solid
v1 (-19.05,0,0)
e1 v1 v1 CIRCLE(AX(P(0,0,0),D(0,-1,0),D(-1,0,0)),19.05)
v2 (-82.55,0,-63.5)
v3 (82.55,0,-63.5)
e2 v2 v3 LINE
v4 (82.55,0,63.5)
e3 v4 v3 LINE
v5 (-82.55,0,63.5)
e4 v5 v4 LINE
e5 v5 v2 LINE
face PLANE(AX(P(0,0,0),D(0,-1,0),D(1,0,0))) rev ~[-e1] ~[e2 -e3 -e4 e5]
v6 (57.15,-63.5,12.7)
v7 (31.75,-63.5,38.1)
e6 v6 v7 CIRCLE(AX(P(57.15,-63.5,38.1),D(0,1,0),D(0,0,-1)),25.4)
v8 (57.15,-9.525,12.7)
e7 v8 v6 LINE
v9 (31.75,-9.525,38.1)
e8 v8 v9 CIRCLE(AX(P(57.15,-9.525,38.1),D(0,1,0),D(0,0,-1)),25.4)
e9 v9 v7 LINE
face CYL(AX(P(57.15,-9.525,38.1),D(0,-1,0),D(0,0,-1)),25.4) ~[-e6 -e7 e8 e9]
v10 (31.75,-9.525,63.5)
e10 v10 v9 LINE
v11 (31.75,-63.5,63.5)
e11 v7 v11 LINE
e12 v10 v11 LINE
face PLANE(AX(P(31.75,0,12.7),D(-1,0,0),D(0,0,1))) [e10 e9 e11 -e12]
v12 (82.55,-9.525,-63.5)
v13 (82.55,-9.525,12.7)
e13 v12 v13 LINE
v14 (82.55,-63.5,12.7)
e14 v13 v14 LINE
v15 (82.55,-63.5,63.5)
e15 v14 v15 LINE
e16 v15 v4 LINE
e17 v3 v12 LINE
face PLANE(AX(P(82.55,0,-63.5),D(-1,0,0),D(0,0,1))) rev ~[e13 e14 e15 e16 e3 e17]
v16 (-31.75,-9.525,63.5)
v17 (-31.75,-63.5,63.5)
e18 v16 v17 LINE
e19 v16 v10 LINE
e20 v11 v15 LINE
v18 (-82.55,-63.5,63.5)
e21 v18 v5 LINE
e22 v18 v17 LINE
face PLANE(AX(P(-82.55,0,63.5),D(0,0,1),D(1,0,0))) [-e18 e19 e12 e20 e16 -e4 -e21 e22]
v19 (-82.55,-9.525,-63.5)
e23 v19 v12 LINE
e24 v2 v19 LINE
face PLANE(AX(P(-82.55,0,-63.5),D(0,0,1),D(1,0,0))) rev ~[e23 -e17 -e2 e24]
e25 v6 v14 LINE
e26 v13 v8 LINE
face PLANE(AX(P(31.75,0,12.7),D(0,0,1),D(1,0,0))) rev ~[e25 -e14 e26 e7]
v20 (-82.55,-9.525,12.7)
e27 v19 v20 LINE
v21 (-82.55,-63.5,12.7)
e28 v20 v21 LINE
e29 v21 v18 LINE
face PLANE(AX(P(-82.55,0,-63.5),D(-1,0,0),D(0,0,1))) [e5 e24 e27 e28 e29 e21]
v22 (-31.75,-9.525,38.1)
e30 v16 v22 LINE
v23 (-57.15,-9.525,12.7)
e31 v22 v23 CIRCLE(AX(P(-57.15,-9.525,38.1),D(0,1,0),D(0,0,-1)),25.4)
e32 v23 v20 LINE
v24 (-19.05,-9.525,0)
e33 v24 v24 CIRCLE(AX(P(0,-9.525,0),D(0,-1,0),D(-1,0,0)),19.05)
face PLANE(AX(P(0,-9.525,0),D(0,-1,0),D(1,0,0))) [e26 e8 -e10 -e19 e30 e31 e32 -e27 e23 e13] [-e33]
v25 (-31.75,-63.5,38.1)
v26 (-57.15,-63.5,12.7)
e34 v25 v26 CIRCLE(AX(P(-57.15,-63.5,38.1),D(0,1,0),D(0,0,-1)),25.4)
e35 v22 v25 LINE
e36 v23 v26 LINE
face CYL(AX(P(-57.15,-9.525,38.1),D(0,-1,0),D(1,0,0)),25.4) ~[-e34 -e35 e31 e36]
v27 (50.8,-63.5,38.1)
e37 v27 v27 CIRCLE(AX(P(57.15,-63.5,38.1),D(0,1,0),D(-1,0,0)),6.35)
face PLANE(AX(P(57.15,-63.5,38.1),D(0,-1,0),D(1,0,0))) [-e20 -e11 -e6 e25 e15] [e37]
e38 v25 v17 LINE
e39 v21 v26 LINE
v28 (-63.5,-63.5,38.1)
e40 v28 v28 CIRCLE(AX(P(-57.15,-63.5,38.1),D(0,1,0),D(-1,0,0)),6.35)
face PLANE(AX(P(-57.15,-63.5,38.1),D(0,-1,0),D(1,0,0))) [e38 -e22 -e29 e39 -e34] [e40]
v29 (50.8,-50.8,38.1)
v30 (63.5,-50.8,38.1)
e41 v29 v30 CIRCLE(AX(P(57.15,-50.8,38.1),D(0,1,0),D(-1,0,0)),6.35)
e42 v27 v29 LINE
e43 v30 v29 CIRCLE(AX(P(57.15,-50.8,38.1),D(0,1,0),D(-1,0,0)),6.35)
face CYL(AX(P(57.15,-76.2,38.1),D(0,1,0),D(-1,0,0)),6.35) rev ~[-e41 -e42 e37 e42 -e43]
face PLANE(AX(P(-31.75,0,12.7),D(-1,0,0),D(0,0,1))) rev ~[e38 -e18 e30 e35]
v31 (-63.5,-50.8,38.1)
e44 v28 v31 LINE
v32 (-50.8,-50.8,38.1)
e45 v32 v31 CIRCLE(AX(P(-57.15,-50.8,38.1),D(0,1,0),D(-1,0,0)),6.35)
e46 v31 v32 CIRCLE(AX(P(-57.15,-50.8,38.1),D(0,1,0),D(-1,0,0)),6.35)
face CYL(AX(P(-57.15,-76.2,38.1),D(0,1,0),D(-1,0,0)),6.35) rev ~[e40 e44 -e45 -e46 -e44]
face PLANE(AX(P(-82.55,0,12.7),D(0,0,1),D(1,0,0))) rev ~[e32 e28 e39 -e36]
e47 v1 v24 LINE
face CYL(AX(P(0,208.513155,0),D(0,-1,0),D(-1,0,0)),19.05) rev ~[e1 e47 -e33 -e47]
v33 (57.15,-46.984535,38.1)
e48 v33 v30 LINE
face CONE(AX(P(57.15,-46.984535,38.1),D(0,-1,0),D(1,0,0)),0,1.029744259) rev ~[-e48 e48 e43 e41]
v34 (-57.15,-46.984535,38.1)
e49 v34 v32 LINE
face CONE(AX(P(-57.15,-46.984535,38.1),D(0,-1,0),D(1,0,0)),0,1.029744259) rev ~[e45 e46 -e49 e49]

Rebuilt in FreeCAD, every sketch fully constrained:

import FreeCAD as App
import Part
import Sketcher

V = App.Vector
Q = App.Units.Quantity


def edges_at(feature, points):
    """Names of the edges that pass closest to the given points."""
    edges = feature.Shape.Edges
    near = lambda p: min(range(len(edges)), key=lambda i: edges[i].distToShape(Part.Vertex(*p))[0])
    return sorted({f"Edge{near(p) + 1}" for p in points})

doc = App.newDocument("Part")
body = doc.addObject("PartDesign::Body", "Body")

sketch1 = body.newObject("Sketcher::SketchObject", "Sketch")
sketch1.AttachmentSupport = (doc.getObject("XZ_Plane"), [""])
sketch1.MapMode = "FlatFace"
sketch1.addGeometry(Part.LineSegment(V(-82.55, 63.5, 0), V(-82.55, -63.5, 0)), False)
sketch1.addGeometry(Part.LineSegment(V(-82.55, -63.5, 0), V(82.55, -63.5, 0)), False)
sketch1.addGeometry(Part.LineSegment(V(82.55, -63.5, 0), V(82.55, 63.5, 0)), False)
sketch1.addGeometry(Part.LineSegment(V(82.55, 63.5, 0), V(-82.55, 63.5, 0)), False)
sketch1.addConstraint(Sketcher.Constraint("Coincident", 0, 2, 1, 1))
sketch1.addConstraint(Sketcher.Constraint("Coincident", 1, 2, 2, 1))
sketch1.addConstraint(Sketcher.Constraint("Coincident", 2, 2, 3, 1))
sketch1.addConstraint(Sketcher.Constraint("Coincident", 3, 2, 0, 1))
sketch1.addConstraint(Sketcher.Constraint("Vertical", 0))
sketch1.addConstraint(Sketcher.Constraint("Horizontal", 1))
sketch1.addConstraint(Sketcher.Constraint("Vertical", 2))
sketch1.addConstraint(Sketcher.Constraint("Horizontal", 3))
sketch1.addConstraint(Sketcher.Constraint("Symmetric", 0, 2, 2, 2, -1, 1))
sketch1.addConstraint(Sketcher.Constraint("DistanceY", 0, 2, 0, 1, Q("5 in")))
sketch1.addConstraint(Sketcher.Constraint("DistanceX", 1, 1, 1, 2, Q("6.5 in")))
pad1 = body.newObject("PartDesign::Pad", "Pad")
pad1.Profile = sketch1
pad1.Length = Q("0.375 in")

sketch2 = body.newObject("Sketcher::SketchObject", "Sketch001")
sketch2.AttachmentSupport = (doc.getObject("XZ_Plane"), [""])
sketch2.MapMode = "FlatFace"
sketch2.addGeometry(Part.Circle(V(0, 0, 0), V(0, 0, 1), 19.05), False)
sketch2.addConstraint(Sketcher.Constraint("Coincident", 0, 3, -1, 1))
sketch2.addConstraint(Sketcher.Constraint("Diameter", 0, Q("1.5 in")))
doc.recompute()
hole = body.newObject("PartDesign::Hole", "Hole")
hole.Profile = sketch2
hole.ThreadType = "None"
hole.Diameter = Q("1.5 in")
hole.DepthType = "ThroughAll"
hole.Reversed = True

sketch3 = body.newObject("Sketcher::SketchObject", "Sketch002")
sketch3.AttachmentSupport = (doc.getObject("XZ_Plane"), [""])
sketch3.MapMode = "FlatFace"
sketch3.addGeometry(Part.LineSegment(V(-82.55, 63.5, 0), V(-82.55, 12.7, 0)), False)
sketch3.addGeometry(Part.LineSegment(V(-82.55, 12.7, 0), V(-31.75, 12.7, 0)), False)
sketch3.addGeometry(Part.LineSegment(V(-31.75, 12.7, 0), V(-31.75, 63.5, 0)), False)
sketch3.addGeometry(Part.LineSegment(V(-31.75, 63.5, 0), V(-82.55, 63.5, 0)), False)
sketch3.addGeometry(Part.LineSegment(V(31.75, 63.5, 0), V(31.75, 12.7, 0)), False)
sketch3.addGeometry(Part.LineSegment(V(31.75, 12.7, 0), V(82.55, 12.7, 0)), False)
sketch3.addGeometry(Part.LineSegment(V(82.55, 12.7, 0), V(82.55, 63.5, 0)), False)
sketch3.addGeometry(Part.LineSegment(V(82.55, 63.5, 0), V(31.75, 63.5, 0)), False)
sketch3.addConstraint(Sketcher.Constraint("Coincident", 0, 2, 1, 1))
sketch3.addConstraint(Sketcher.Constraint("Coincident", 1, 2, 2, 1))
sketch3.addConstraint(Sketcher.Constraint("Coincident", 2, 2, 3, 1))
sketch3.addConstraint(Sketcher.Constraint("Coincident", 3, 2, 0, 1))
sketch3.addConstraint(Sketcher.Constraint("Coincident", 4, 2, 5, 1))
sketch3.addConstraint(Sketcher.Constraint("Coincident", 5, 2, 6, 1))
sketch3.addConstraint(Sketcher.Constraint("Coincident", 6, 2, 7, 1))
sketch3.addConstraint(Sketcher.Constraint("Coincident", 7, 2, 4, 1))
sketch3.addConstraint(Sketcher.Constraint("Vertical", 0))
sketch3.addConstraint(Sketcher.Constraint("Horizontal", 1))
sketch3.addConstraint(Sketcher.Constraint("Vertical", 2))
sketch3.addConstraint(Sketcher.Constraint("Horizontal", 3))
sketch3.addConstraint(Sketcher.Constraint("Vertical", 4))
sketch3.addConstraint(Sketcher.Constraint("Horizontal", 5))
sketch3.addConstraint(Sketcher.Constraint("Vertical", 6))
sketch3.addConstraint(Sketcher.Constraint("Horizontal", 7))
sketch3.addConstraint(Sketcher.Constraint("Symmetric", 1, 2, 4, 2, -2))
sketch3.addConstraint(Sketcher.Constraint("Symmetric", 3, 2, 6, 2, -2))
sketch3.addConstraint(Sketcher.Constraint("Equal", 7, 0))
sketch3.addConstraint(Sketcher.Constraint("DistanceX", 1, 1, 1, 2, Q("2 in")))
sketch3.addConstraint(Sketcher.Constraint("DistanceY", -1, 1, 0, 2, Q("0.5 in")))
sketch3.addConstraint(Sketcher.Constraint("DistanceX", 1, 2, 4, 2, Q("2.5 in")))
pad2 = body.newObject("PartDesign::Pad", "Pad001")
pad2.Profile = sketch3
pad2.Length = Q("2.5 in")
doc.recompute()

fillet = body.newObject("PartDesign::Fillet", "Fillet")
fillet.Base = (pad2, edges_at(pad2, [(-31.75, -36.513, 12.7), (31.75, -36.513, 12.7)]))
fillet.Radius = Q("1 in")

sketch4 = body.newObject("Sketcher::SketchObject", "Sketch003")
sketch4.AttachmentSupport = (doc.getObject("XZ_Plane"), [""])
sketch4.MapMode = "FlatFace"
sketch4.AttachmentOffset = App.Placement(V(0, 0, 2.5 * 25.4), App.Rotation())
sketch4.addGeometry(Part.Circle(V(-57.15, 38.1, 0), V(0, 0, 1), 6.35), False)
sketch4.addGeometry(Part.Circle(V(57.15, 38.1, 0), V(0, 0, 1), 6.35), False)
sketch4.addConstraint(Sketcher.Constraint("Equal", 0, 1))
sketch4.addConstraint(Sketcher.Constraint("Symmetric", 0, 3, 1, 3, -2))
sketch4.addConstraint(Sketcher.Constraint("Diameter", 0, Q("0.5 in")))
sketch4.addConstraint(Sketcher.Constraint("DistanceY", -1, 1, 0, 3, Q("1.5 in")))
sketch4.addConstraint(Sketcher.Constraint("DistanceX", 0, 3, 1, 3, Q("4.5 in")))
doc.recompute()
hole2 = body.newObject("PartDesign::Hole", "Hole001")
hole2.Profile = sketch4
hole2.ThreadType = "None"
hole2.Diameter = Q("0.5 in")
hole2.DepthType = "Dimension"
hole2.Depth = Q("0.5 in")
hole2.DrillPoint = "Angled"
hole2.DrillPointAngle = 118

doc.recompute()
